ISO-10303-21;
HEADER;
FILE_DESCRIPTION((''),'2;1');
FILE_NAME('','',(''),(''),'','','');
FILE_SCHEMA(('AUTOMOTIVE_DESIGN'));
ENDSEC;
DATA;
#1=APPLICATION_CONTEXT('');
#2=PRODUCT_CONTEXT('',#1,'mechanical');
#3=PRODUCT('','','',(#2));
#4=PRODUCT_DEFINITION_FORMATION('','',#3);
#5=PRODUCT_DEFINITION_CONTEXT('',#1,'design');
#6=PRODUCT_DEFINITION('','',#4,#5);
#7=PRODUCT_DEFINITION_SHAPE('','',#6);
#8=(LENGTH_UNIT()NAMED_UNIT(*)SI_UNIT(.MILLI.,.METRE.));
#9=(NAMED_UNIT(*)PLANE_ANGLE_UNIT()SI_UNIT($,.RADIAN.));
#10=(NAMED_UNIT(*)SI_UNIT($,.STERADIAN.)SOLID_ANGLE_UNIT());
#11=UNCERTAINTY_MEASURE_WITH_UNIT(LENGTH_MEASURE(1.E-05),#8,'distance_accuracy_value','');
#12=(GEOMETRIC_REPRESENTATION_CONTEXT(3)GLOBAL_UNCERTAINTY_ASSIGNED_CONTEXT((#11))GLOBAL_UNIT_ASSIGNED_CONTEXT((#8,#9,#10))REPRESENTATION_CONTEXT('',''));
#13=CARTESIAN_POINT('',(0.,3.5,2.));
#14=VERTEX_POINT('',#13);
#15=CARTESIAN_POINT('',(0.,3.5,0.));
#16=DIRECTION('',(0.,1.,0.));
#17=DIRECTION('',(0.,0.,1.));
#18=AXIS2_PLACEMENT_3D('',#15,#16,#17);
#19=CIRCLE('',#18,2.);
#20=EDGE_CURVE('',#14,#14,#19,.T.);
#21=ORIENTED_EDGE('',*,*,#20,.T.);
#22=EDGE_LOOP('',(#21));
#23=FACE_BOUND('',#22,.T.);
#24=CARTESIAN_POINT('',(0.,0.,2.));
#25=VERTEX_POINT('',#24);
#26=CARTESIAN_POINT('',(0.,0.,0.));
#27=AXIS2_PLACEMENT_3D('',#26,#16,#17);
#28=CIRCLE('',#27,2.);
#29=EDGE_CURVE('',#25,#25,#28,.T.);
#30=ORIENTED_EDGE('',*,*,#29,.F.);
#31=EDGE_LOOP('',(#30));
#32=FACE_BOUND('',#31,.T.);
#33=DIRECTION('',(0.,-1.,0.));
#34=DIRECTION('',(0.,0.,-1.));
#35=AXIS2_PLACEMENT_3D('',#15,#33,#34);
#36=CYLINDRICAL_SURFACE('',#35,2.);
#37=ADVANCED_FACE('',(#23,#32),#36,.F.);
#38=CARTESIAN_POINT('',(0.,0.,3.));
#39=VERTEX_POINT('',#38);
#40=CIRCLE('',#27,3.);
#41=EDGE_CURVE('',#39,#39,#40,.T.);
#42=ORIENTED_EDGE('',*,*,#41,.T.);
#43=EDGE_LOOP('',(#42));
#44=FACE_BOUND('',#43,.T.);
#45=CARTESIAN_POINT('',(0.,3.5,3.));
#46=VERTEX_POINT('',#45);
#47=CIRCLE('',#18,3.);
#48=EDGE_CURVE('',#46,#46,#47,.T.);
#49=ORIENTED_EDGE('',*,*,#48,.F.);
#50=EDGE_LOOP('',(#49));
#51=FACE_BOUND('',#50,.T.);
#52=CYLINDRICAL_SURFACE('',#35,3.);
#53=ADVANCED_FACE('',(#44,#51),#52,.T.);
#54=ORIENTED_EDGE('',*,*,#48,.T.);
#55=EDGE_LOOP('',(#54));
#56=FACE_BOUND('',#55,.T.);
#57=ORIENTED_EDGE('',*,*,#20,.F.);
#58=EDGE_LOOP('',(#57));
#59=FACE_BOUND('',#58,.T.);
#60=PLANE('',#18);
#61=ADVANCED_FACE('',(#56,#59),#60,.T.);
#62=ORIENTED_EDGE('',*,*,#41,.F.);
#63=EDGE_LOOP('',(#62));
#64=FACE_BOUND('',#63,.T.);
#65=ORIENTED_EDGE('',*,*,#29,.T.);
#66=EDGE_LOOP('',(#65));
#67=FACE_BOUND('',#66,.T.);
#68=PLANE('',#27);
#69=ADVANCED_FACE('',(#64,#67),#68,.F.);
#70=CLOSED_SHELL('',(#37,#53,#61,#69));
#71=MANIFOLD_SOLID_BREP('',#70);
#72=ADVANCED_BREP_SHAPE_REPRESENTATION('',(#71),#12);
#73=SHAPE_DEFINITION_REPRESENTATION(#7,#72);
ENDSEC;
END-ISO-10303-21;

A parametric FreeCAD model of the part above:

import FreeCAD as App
import Part
import Sketcher
from FreeCAD import Vector

doc = App.newDocument("Part")
body = doc.addObject("PartDesign::Body", "Body")

sketch1 = doc.addObject("Sketcher::SketchObject", "Sketch")
body.addObject(sketch1)
sketch1.AttachmentSupport = (doc.XZ_Plane, [""])
sketch1.MapMode = "FlatFace"
sketch1.addGeometry(Part.Circle(Vector(0, 0, 0), Vector(0, 0, 1), 3), False)
sketch1.addGeometry(Part.Circle(Vector(0, 0, 0), Vector(0, 0, 1), 2), False)
sketch1.addConstraint(Sketcher.Constraint("Coincident", 0, 3, -1, 1))
sketch1.addConstraint(Sketcher.Constraint("Coincident", 1, 3, -1, 1))
sketch1.addConstraint(Sketcher.Constraint("Diameter", 0, 6.0))
sketch1.addConstraint(Sketcher.Constraint("Diameter", 1, 4.0))
pad1 = doc.addObject("PartDesign::Pad", "Pad")
body.addObject(pad1)
pad1.Profile = sketch1
pad1.Length = 3.5
pad1.Reversed = True

doc.recompute()
